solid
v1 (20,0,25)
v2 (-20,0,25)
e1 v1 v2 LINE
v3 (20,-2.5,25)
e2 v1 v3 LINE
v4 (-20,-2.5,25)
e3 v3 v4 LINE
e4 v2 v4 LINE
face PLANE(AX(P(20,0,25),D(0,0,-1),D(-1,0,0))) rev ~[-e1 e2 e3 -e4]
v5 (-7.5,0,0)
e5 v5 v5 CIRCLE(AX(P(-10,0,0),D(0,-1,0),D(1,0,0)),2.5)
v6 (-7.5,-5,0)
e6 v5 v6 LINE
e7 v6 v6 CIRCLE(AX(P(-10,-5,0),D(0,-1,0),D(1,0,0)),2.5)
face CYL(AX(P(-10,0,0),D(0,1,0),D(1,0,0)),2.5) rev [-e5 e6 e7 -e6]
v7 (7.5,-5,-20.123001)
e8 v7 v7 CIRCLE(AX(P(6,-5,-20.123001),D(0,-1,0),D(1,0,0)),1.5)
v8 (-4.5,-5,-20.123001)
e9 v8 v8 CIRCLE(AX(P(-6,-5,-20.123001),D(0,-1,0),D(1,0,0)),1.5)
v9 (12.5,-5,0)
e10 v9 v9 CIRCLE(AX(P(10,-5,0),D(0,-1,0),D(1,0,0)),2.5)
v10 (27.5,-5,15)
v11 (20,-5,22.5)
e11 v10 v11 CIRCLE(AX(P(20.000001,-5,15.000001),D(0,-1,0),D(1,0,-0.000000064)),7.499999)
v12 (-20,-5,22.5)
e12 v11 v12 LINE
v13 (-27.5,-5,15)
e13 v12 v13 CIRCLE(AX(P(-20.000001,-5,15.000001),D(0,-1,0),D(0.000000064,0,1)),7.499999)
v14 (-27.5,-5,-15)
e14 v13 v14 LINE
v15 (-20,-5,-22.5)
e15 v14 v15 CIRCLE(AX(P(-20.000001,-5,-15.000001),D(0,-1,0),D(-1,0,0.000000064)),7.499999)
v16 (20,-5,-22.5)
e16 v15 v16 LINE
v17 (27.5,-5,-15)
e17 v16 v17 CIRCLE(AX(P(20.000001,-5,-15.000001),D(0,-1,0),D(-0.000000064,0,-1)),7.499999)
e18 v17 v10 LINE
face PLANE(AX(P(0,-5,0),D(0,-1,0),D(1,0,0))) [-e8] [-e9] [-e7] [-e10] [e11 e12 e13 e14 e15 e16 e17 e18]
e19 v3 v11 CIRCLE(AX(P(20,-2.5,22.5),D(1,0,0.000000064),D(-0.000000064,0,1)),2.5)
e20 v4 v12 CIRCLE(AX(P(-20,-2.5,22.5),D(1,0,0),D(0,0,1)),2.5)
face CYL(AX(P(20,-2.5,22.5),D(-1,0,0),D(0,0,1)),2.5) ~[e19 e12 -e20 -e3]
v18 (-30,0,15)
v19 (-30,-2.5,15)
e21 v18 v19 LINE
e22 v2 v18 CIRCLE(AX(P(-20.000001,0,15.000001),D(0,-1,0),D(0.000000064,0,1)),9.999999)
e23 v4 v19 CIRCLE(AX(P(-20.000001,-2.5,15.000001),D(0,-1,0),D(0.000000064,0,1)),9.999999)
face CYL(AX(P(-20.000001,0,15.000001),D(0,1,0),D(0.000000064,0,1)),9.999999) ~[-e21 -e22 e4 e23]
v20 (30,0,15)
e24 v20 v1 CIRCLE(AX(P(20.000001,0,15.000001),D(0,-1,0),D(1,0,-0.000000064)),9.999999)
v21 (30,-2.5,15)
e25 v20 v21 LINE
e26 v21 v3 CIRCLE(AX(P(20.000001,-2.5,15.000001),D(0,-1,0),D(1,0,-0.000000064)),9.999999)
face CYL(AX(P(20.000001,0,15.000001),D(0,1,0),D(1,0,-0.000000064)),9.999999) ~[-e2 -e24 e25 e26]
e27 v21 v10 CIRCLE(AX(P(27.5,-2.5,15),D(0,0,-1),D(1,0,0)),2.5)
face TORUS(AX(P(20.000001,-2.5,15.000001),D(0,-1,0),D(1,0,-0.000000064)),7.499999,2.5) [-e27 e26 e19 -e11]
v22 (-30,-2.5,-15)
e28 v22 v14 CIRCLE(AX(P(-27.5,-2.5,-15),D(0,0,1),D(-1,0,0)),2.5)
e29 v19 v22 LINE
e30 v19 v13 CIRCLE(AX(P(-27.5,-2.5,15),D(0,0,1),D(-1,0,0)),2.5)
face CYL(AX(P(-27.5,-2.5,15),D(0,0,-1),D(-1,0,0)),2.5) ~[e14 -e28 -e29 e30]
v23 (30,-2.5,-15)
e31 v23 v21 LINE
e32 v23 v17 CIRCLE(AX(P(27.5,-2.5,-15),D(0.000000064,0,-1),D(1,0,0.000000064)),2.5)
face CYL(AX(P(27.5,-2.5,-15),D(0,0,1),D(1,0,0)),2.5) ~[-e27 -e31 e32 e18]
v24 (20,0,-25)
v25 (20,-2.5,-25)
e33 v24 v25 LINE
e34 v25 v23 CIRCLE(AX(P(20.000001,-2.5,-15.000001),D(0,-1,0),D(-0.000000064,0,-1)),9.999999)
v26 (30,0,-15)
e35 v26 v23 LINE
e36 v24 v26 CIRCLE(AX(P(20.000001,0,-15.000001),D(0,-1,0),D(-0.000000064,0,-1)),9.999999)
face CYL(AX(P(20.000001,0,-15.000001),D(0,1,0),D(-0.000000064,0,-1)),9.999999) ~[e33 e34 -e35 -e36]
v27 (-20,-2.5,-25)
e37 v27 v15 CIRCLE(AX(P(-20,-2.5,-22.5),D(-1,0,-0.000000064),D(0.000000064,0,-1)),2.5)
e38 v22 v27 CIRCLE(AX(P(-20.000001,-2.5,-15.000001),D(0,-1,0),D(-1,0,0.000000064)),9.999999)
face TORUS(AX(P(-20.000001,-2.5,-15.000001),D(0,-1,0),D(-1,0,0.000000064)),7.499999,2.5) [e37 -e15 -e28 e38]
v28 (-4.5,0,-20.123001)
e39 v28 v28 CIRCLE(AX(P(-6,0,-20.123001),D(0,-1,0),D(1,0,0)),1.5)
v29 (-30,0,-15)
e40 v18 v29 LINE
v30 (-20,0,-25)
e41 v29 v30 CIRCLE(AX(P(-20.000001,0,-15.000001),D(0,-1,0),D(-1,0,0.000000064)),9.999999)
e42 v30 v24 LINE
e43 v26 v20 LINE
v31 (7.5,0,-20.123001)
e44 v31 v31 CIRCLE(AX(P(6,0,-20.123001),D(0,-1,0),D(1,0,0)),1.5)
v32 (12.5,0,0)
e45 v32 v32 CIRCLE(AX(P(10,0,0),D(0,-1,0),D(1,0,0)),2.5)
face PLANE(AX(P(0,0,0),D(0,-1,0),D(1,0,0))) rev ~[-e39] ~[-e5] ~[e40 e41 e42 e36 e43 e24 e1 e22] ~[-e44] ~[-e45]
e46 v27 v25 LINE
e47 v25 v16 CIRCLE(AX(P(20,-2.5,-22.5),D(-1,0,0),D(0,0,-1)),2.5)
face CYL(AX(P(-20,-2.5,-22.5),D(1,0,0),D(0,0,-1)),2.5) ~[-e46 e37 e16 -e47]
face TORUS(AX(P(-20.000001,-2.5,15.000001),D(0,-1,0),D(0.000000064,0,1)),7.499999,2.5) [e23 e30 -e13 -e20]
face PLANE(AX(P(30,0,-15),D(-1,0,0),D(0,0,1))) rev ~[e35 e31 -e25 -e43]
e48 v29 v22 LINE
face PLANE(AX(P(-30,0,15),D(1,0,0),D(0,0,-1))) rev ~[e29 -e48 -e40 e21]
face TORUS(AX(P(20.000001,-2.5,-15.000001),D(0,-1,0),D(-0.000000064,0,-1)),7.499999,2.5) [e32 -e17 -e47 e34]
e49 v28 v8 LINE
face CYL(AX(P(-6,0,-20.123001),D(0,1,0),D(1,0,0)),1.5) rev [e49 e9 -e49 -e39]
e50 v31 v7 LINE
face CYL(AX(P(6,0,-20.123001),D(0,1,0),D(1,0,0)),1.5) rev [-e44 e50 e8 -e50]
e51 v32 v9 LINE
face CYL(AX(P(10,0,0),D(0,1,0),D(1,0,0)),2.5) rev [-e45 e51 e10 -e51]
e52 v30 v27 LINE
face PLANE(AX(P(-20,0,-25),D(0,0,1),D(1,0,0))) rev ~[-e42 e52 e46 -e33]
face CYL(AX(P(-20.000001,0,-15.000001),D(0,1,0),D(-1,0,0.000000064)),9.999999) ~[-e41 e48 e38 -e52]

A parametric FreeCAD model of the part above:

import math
import FreeCAD as App
import Part
import Sketcher
Q = App.Units.Quantity


def edges_at(feature, points):
    """Names of the edges that pass closest to the given points."""
    edges = feature.Shape.Edges
    near = lambda p: min(range(len(edges)), key=lambda i: edges[i].distToShape(Part.Vertex(*p))[0])
    return sorted({f"Edge{near(p) + 1}" for p in points})

doc = App.newDocument("Part")
body = doc.addObject("PartDesign::Body", "Body")

sketch1 = body.newObject("Sketcher::SketchObject", "Sketch")
sketch1.AttachmentSupport = (doc.getObject("XZ_Plane"), [""])
sketch1.MapMode = "FlatFace"
sketch1.addGeometry(Part.LineSegment(App.Vector(-20, -25, 0), App.Vector(20, -25, 0)), False)
sketch1.addGeometry(Part.ArcOfCircle(Part.Circle(App.Vector(20, -15, 0), App.Vector(0, 0, 1), 10), math.radians(-90), math.radians(0)), False)
sketch1.addGeometry(Part.LineSegment(App.Vector(30, -15, 0), App.Vector(30, 15, 0)), False)
sketch1.addGeometry(Part.ArcOfCircle(Part.Circle(App.Vector(20, 15, 0), App.Vector(0, 0, 1), 10), math.radians(0), math.radians(90)), False)
sketch1.addGeometry(Part.LineSegment(App.Vector(20, 25, 0), App.Vector(-20, 25, 0)), False)
sketch1.addGeometry(Part.ArcOfCircle(Part.Circle(App.Vector(-20, 15, 0), App.Vector(0, 0, 1), 10), math.radians(90), math.radians(180)), False)
sketch1.addGeometry(Part.LineSegment(App.Vector(-30, 15, 0), App.Vector(-30, -15, 0)), False)
sketch1.addGeometry(Part.ArcOfCircle(Part.Circle(App.Vector(-20, -15, 0), App.Vector(0, 0, 1), 10), math.radians(180), math.radians(270)), False)
sketch1.addGeometry(Part.Circle(App.Vector(-6, -20.1, 0), App.Vector(0, 0, 1), 1.5), False)
sketch1.addGeometry(Part.Circle(App.Vector(6, -20.1, 0), App.Vector(0, 0, 1), 1.5), False)
sketch1.addGeometry(Part.Circle(App.Vector(-10, 0, 0), App.Vector(0, 0, 1), 2.5), False)
sketch1.addGeometry(Part.Circle(App.Vector(10, 0, 0), App.Vector(0, 0, 1), 2.5), False)
sketch1.addConstraint(Sketcher.Constraint("Tangent", 0, 2, 1, 1))
sketch1.addConstraint(Sketcher.Constraint("Tangent", 1, 2, 2, 1))
sketch1.addConstraint(Sketcher.Constraint("Tangent", 2, 2, 3, 1))
sketch1.addConstraint(Sketcher.Constraint("Tangent", 3, 2, 4, 1))
sketch1.addConstraint(Sketcher.Constraint("Tangent", 4, 2, 5, 1))
sketch1.addConstraint(Sketcher.Constraint("Tangent", 5, 2, 6, 1))
sketch1.addConstraint(Sketcher.Constraint("Tangent", 6, 2, 7, 1))
sketch1.addConstraint(Sketcher.Constraint("Tangent", 7, 2, 0, 1))
sketch1.addConstraint(Sketcher.Constraint("Horizontal", 0))
sketch1.addConstraint(Sketcher.Constraint("Vertical", 2))
sketch1.addConstraint(Sketcher.Constraint("Horizontal", 4))
sketch1.addConstraint(Sketcher.Constraint("Vertical", 6))
sketch1.addConstraint(Sketcher.Constraint("Equal", 1, 3))
sketch1.addConstraint(Sketcher.Constraint("Equal", 3, 5))
sketch1.addConstraint(Sketcher.Constraint("Equal", 5, 7))
sketch1.addConstraint(Sketcher.Constraint("Equal", 8, 9))
sketch1.addConstraint(Sketcher.Constraint("Equal", 10, 11))
sketch1.addConstraint(Sketcher.Constraint("Symmetric", 1, 3, 5, 3, -1, 1))
sketch1.addConstraint(Sketcher.Constraint("Symmetric", 10, 3, 11, 3, -1, 1))
sketch1.addConstraint(Sketcher.Constraint("Symmetric", 8, 3, 9, 3, -2))
sketch1.addConstraint(Sketcher.Constraint("PointOnObject", 10, 3, -1))
sketch1.addConstraint(Sketcher.Constraint("Diameter", 8, Q("3 mm")))
sketch1.addConstraint(Sketcher.Constraint("Diameter", 10, Q("5 mm")))
sketch1.addConstraint(Sketcher.Constraint("Radius", 1, Q("9.999999 mm")))
sketch1.addConstraint(Sketcher.Constraint("DistanceX", 0, 1, 0, 2, Q("40 mm")))
sketch1.addConstraint(Sketcher.Constraint("DistanceY", 2, 1, 2, 2, Q("30 mm")))
sketch1.addConstraint(Sketcher.Constraint("DistanceX", 8, 3, -1, 1, Q("6 mm")))
sketch1.addConstraint(Sketcher.Constraint("DistanceX", 10, 3, -1, 1, Q("10 mm")))
sketch1.addConstraint(Sketcher.Constraint("DistanceY", 8, 3, -1, 1, Q("20.123001 mm")))
pad1 = body.newObject("PartDesign::Pad", "Pad")
pad1.Profile = sketch1
pad1.Length = 5
doc.recompute()

fillet = body.newObject("PartDesign::Fillet", "Fillet")
fillet.Base = (pad1, edges_at(pad1, [
    (-30, -5, 0),
    (30, -5, 0),
    (0, -5, 25),
    (0, -5, -25),
    (-27.071, -5, -22.071),
    (27.071, -5, -22.071),
    (-27.071, -5, 22.071),
    (27.071, -5, 22.071),
]))
fillet.Radius = 2.5

doc.recompute()
